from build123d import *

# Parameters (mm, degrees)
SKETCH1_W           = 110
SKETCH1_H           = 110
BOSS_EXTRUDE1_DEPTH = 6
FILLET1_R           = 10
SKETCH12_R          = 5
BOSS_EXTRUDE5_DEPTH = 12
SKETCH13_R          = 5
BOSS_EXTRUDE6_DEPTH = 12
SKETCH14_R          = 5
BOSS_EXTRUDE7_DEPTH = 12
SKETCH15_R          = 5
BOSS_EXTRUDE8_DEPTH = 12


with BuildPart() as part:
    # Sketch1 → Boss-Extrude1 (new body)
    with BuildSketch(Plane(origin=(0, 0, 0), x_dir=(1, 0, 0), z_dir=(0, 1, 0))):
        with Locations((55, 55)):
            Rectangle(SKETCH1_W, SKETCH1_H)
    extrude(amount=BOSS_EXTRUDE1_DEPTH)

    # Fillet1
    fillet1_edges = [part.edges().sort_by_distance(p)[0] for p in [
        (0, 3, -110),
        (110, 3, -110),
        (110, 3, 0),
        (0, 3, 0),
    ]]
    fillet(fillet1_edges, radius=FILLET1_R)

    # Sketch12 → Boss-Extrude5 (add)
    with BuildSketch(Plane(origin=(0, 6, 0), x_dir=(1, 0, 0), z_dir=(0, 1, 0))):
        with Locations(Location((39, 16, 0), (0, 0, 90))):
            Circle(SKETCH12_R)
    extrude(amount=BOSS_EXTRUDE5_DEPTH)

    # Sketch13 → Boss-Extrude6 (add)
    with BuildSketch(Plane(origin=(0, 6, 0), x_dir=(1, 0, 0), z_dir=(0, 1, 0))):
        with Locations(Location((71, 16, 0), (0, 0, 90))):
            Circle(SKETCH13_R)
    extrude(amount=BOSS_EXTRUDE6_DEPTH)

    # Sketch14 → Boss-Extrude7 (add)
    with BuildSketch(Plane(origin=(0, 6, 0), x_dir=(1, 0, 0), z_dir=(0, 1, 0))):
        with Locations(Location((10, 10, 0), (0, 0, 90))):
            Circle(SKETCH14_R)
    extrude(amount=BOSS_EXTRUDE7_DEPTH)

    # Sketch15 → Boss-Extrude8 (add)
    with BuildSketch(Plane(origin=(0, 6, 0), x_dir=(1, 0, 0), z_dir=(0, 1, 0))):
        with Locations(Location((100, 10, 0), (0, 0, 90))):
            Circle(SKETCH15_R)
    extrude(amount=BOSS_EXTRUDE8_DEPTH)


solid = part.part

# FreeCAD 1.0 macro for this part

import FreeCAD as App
import Part
import Sketcher
Q = App.Units.Quantity


def edges_at(feature, points):
    """Names of the edges that pass closest to the given points."""
    edges = feature.Shape.Edges
    near = lambda p: min(range(len(edges)), key=lambda i: edges[i].distToShape(Part.Vertex(*p))[0])
    return sorted({f"Edge{near(p) + 1}" for p in points})

doc = App.newDocument("Part")
body = doc.addObject("PartDesign::Body", "Body")

# Sketch on XZ plane
sketch1 = doc.addObject("Sketcher::SketchObject", "Sketch")
body.addObject(sketch1)
sketch1.AttachmentSupport = (doc.XZ_Plane, [""])
sketch1.MapMode = "FlatFace"
sketch1.addGeometry(Part.LineSegment(App.Vector(0, -110, 0), App.Vector(0, 0, 0)), False)
sketch1.addGeometry(Part.LineSegment(App.Vector(0, 0, 0), App.Vector(110, 0, 0)), False)
sketch1.addGeometry(Part.LineSegment(App.Vector(110, 0, 0), App.Vector(110, -110, 0)), False)
sketch1.addGeometry(Part.LineSegment(App.Vector(110, -110, 0), App.Vector(0, -110, 0)), False)
sketch1.addConstraint(Sketcher.Constraint("Coincident", 0, 2, 1, 1))
sketch1.addConstraint(Sketcher.Constraint("Coincident", 1, 2, 2, 1))
sketch1.addConstraint(Sketcher.Constraint("Coincident", 2, 2, 3, 1))
sketch1.addConstraint(Sketcher.Constraint("Coincident", 3, 2, 0, 1))
sketch1.addConstraint(Sketcher.Constraint("Vertical", 0))
sketch1.addConstraint(Sketcher.Constraint("Horizontal", 1))
sketch1.addConstraint(Sketcher.Constraint("Vertical", 2))
sketch1.addConstraint(Sketcher.Constraint("Horizontal", 3))
sketch1.addConstraint(Sketcher.Constraint("Coincident", 0, 2, -1, 1))
sketch1.addConstraint(Sketcher.Constraint("Equal", 3, 0))
sketch1.addConstraint(Sketcher.Constraint("DistanceX", 1, 1, 1, 2, Q("110 mm")))
pad1 = doc.addObject("PartDesign::Pad", "Pad")
body.addObject(pad1)
pad1.Profile = sketch1
pad1.Length = 6
pad1.Reversed = True
doc.recompute()

fillet = doc.addObject("PartDesign::Fillet", "Fillet")
body.addObject(fillet)
fillet.Base = (pad1, edges_at(pad1, [
    (0, 3, -110),
    (110, 3, -110),
    (110, 3, 0),
    (0, 3, 0),
]))
fillet.Radius = 10

# Sketch on XZ plane
sketch2 = doc.addObject("Sketcher::SketchObject", "Sketch001")
body.addObject(sketch2)
sketch2.AttachmentSupport = (doc.XZ_Plane, [""])
sketch2.MapMode = "FlatFace"
sketch2.AttachmentOffset = App.Placement(App.Vector(0, 0, -6), App.Rotation())
sketch2.addGeometry(Part.Circle(App.Vector(39, -16, 0), App.Vector(0, 0, 1), 5), False)
sketch2.addConstraint(Sketcher.Constraint("Diameter", 0, Q("10 mm")))
sketch2.addConstraint(Sketcher.Constraint("DistanceX", -1, 1, 0, 3, Q("39 mm")))
sketch2.addConstraint(Sketcher.Constraint("DistanceY", 0, 3, -1, 1, Q("16 mm")))
pad2 = doc.addObject("PartDesign::Pad", "Pad001")
body.addObject(pad2)
pad2.Profile = sketch2
pad2.Length = 12
pad2.Reversed = True

# Sketch on XZ plane
sketch3 = doc.addObject("Sketcher::SketchObject", "Sketch002")
body.addObject(sketch3)
sketch3.AttachmentSupport = (doc.XZ_Plane, [""])
sketch3.MapMode = "FlatFace"
sketch3.AttachmentOffset = App.Placement(App.Vector(0, 0, -6), App.Rotation())
sketch3.addGeometry(Part.Circle(App.Vector(71, -16, 0), App.Vector(0, 0, 1), 5), False)
sketch3.addConstraint(Sketcher.Constraint("Diameter", 0, Q("10 mm")))
sketch3.addConstraint(Sketcher.Constraint("DistanceX", -1, 1, 0, 3, Q("71 mm")))
sketch3.addConstraint(Sketcher.Constraint("DistanceY", 0, 3, -1, 1, Q("16 mm")))
pad3 = doc.addObject("PartDesign::Pad", "Pad002")
body.addObject(pad3)
pad3.Profile = sketch3
pad3.Length = 12
pad3.Reversed = True

# Sketch on XZ plane
sketch4 = doc.addObject("Sketcher::SketchObject", "Sketch003")
body.addObject(sketch4)
sketch4.AttachmentSupport = (doc.XZ_Plane, [""])
sketch4.MapMode = "FlatFace"
sketch4.AttachmentOffset = App.Placement(App.Vector(0, 0, -6), App.Rotation())
sketch4.addGeometry(Part.Circle(App.Vector(10, -10, 0), App.Vector(0, 0, 1), 5), False)
sketch4.addConstraint(Sketcher.Constraint("Diameter", 0, Q("10 mm")))
sketch4.addConstraint(Sketcher.Constraint("DistanceX", -1, 1, 0, 3, Q("10 mm")))
sketch4.addConstraint(Sketcher.Constraint("DistanceY", 0, 3, -1, 1, Q("10 mm")))
pad4 = doc.addObject("PartDesign::Pad", "Pad003")
body.addObject(pad4)
pad4.Profile = sketch4
pad4.Length = 12
pad4.Reversed = True

# Sketch on XZ plane
sketch5 = doc.addObject("Sketcher::SketchObject", "Sketch004")
body.addObject(sketch5)
sketch5.AttachmentSupport = (doc.XZ_Plane, [""])
sketch5.MapMode = "FlatFace"
sketch5.AttachmentOffset = App.Placement(App.Vector(0, 0, -6), App.Rotation())
sketch5.addGeometry(Part.Circle(App.Vector(100, -10, 0), App.Vector(0, 0, 1), 5), False)
sketch5.addConstraint(Sketcher.Constraint("Diameter", 0, Q("10 mm")))
sketch5.addConstraint(Sketcher.Constraint("DistanceX", -1, 1, 0, 3, Q("100 mm")))
sketch5.addConstraint(Sketcher.Constraint("DistanceY", 0, 3, -1, 1, Q("10 mm")))
pad5 = doc.addObject("PartDesign::Pad", "Pad004")
body.addObject(pad5)
pad5.Profile = sketch5
pad5.Length = 12
pad5.Reversed = True

doc.recompute()
